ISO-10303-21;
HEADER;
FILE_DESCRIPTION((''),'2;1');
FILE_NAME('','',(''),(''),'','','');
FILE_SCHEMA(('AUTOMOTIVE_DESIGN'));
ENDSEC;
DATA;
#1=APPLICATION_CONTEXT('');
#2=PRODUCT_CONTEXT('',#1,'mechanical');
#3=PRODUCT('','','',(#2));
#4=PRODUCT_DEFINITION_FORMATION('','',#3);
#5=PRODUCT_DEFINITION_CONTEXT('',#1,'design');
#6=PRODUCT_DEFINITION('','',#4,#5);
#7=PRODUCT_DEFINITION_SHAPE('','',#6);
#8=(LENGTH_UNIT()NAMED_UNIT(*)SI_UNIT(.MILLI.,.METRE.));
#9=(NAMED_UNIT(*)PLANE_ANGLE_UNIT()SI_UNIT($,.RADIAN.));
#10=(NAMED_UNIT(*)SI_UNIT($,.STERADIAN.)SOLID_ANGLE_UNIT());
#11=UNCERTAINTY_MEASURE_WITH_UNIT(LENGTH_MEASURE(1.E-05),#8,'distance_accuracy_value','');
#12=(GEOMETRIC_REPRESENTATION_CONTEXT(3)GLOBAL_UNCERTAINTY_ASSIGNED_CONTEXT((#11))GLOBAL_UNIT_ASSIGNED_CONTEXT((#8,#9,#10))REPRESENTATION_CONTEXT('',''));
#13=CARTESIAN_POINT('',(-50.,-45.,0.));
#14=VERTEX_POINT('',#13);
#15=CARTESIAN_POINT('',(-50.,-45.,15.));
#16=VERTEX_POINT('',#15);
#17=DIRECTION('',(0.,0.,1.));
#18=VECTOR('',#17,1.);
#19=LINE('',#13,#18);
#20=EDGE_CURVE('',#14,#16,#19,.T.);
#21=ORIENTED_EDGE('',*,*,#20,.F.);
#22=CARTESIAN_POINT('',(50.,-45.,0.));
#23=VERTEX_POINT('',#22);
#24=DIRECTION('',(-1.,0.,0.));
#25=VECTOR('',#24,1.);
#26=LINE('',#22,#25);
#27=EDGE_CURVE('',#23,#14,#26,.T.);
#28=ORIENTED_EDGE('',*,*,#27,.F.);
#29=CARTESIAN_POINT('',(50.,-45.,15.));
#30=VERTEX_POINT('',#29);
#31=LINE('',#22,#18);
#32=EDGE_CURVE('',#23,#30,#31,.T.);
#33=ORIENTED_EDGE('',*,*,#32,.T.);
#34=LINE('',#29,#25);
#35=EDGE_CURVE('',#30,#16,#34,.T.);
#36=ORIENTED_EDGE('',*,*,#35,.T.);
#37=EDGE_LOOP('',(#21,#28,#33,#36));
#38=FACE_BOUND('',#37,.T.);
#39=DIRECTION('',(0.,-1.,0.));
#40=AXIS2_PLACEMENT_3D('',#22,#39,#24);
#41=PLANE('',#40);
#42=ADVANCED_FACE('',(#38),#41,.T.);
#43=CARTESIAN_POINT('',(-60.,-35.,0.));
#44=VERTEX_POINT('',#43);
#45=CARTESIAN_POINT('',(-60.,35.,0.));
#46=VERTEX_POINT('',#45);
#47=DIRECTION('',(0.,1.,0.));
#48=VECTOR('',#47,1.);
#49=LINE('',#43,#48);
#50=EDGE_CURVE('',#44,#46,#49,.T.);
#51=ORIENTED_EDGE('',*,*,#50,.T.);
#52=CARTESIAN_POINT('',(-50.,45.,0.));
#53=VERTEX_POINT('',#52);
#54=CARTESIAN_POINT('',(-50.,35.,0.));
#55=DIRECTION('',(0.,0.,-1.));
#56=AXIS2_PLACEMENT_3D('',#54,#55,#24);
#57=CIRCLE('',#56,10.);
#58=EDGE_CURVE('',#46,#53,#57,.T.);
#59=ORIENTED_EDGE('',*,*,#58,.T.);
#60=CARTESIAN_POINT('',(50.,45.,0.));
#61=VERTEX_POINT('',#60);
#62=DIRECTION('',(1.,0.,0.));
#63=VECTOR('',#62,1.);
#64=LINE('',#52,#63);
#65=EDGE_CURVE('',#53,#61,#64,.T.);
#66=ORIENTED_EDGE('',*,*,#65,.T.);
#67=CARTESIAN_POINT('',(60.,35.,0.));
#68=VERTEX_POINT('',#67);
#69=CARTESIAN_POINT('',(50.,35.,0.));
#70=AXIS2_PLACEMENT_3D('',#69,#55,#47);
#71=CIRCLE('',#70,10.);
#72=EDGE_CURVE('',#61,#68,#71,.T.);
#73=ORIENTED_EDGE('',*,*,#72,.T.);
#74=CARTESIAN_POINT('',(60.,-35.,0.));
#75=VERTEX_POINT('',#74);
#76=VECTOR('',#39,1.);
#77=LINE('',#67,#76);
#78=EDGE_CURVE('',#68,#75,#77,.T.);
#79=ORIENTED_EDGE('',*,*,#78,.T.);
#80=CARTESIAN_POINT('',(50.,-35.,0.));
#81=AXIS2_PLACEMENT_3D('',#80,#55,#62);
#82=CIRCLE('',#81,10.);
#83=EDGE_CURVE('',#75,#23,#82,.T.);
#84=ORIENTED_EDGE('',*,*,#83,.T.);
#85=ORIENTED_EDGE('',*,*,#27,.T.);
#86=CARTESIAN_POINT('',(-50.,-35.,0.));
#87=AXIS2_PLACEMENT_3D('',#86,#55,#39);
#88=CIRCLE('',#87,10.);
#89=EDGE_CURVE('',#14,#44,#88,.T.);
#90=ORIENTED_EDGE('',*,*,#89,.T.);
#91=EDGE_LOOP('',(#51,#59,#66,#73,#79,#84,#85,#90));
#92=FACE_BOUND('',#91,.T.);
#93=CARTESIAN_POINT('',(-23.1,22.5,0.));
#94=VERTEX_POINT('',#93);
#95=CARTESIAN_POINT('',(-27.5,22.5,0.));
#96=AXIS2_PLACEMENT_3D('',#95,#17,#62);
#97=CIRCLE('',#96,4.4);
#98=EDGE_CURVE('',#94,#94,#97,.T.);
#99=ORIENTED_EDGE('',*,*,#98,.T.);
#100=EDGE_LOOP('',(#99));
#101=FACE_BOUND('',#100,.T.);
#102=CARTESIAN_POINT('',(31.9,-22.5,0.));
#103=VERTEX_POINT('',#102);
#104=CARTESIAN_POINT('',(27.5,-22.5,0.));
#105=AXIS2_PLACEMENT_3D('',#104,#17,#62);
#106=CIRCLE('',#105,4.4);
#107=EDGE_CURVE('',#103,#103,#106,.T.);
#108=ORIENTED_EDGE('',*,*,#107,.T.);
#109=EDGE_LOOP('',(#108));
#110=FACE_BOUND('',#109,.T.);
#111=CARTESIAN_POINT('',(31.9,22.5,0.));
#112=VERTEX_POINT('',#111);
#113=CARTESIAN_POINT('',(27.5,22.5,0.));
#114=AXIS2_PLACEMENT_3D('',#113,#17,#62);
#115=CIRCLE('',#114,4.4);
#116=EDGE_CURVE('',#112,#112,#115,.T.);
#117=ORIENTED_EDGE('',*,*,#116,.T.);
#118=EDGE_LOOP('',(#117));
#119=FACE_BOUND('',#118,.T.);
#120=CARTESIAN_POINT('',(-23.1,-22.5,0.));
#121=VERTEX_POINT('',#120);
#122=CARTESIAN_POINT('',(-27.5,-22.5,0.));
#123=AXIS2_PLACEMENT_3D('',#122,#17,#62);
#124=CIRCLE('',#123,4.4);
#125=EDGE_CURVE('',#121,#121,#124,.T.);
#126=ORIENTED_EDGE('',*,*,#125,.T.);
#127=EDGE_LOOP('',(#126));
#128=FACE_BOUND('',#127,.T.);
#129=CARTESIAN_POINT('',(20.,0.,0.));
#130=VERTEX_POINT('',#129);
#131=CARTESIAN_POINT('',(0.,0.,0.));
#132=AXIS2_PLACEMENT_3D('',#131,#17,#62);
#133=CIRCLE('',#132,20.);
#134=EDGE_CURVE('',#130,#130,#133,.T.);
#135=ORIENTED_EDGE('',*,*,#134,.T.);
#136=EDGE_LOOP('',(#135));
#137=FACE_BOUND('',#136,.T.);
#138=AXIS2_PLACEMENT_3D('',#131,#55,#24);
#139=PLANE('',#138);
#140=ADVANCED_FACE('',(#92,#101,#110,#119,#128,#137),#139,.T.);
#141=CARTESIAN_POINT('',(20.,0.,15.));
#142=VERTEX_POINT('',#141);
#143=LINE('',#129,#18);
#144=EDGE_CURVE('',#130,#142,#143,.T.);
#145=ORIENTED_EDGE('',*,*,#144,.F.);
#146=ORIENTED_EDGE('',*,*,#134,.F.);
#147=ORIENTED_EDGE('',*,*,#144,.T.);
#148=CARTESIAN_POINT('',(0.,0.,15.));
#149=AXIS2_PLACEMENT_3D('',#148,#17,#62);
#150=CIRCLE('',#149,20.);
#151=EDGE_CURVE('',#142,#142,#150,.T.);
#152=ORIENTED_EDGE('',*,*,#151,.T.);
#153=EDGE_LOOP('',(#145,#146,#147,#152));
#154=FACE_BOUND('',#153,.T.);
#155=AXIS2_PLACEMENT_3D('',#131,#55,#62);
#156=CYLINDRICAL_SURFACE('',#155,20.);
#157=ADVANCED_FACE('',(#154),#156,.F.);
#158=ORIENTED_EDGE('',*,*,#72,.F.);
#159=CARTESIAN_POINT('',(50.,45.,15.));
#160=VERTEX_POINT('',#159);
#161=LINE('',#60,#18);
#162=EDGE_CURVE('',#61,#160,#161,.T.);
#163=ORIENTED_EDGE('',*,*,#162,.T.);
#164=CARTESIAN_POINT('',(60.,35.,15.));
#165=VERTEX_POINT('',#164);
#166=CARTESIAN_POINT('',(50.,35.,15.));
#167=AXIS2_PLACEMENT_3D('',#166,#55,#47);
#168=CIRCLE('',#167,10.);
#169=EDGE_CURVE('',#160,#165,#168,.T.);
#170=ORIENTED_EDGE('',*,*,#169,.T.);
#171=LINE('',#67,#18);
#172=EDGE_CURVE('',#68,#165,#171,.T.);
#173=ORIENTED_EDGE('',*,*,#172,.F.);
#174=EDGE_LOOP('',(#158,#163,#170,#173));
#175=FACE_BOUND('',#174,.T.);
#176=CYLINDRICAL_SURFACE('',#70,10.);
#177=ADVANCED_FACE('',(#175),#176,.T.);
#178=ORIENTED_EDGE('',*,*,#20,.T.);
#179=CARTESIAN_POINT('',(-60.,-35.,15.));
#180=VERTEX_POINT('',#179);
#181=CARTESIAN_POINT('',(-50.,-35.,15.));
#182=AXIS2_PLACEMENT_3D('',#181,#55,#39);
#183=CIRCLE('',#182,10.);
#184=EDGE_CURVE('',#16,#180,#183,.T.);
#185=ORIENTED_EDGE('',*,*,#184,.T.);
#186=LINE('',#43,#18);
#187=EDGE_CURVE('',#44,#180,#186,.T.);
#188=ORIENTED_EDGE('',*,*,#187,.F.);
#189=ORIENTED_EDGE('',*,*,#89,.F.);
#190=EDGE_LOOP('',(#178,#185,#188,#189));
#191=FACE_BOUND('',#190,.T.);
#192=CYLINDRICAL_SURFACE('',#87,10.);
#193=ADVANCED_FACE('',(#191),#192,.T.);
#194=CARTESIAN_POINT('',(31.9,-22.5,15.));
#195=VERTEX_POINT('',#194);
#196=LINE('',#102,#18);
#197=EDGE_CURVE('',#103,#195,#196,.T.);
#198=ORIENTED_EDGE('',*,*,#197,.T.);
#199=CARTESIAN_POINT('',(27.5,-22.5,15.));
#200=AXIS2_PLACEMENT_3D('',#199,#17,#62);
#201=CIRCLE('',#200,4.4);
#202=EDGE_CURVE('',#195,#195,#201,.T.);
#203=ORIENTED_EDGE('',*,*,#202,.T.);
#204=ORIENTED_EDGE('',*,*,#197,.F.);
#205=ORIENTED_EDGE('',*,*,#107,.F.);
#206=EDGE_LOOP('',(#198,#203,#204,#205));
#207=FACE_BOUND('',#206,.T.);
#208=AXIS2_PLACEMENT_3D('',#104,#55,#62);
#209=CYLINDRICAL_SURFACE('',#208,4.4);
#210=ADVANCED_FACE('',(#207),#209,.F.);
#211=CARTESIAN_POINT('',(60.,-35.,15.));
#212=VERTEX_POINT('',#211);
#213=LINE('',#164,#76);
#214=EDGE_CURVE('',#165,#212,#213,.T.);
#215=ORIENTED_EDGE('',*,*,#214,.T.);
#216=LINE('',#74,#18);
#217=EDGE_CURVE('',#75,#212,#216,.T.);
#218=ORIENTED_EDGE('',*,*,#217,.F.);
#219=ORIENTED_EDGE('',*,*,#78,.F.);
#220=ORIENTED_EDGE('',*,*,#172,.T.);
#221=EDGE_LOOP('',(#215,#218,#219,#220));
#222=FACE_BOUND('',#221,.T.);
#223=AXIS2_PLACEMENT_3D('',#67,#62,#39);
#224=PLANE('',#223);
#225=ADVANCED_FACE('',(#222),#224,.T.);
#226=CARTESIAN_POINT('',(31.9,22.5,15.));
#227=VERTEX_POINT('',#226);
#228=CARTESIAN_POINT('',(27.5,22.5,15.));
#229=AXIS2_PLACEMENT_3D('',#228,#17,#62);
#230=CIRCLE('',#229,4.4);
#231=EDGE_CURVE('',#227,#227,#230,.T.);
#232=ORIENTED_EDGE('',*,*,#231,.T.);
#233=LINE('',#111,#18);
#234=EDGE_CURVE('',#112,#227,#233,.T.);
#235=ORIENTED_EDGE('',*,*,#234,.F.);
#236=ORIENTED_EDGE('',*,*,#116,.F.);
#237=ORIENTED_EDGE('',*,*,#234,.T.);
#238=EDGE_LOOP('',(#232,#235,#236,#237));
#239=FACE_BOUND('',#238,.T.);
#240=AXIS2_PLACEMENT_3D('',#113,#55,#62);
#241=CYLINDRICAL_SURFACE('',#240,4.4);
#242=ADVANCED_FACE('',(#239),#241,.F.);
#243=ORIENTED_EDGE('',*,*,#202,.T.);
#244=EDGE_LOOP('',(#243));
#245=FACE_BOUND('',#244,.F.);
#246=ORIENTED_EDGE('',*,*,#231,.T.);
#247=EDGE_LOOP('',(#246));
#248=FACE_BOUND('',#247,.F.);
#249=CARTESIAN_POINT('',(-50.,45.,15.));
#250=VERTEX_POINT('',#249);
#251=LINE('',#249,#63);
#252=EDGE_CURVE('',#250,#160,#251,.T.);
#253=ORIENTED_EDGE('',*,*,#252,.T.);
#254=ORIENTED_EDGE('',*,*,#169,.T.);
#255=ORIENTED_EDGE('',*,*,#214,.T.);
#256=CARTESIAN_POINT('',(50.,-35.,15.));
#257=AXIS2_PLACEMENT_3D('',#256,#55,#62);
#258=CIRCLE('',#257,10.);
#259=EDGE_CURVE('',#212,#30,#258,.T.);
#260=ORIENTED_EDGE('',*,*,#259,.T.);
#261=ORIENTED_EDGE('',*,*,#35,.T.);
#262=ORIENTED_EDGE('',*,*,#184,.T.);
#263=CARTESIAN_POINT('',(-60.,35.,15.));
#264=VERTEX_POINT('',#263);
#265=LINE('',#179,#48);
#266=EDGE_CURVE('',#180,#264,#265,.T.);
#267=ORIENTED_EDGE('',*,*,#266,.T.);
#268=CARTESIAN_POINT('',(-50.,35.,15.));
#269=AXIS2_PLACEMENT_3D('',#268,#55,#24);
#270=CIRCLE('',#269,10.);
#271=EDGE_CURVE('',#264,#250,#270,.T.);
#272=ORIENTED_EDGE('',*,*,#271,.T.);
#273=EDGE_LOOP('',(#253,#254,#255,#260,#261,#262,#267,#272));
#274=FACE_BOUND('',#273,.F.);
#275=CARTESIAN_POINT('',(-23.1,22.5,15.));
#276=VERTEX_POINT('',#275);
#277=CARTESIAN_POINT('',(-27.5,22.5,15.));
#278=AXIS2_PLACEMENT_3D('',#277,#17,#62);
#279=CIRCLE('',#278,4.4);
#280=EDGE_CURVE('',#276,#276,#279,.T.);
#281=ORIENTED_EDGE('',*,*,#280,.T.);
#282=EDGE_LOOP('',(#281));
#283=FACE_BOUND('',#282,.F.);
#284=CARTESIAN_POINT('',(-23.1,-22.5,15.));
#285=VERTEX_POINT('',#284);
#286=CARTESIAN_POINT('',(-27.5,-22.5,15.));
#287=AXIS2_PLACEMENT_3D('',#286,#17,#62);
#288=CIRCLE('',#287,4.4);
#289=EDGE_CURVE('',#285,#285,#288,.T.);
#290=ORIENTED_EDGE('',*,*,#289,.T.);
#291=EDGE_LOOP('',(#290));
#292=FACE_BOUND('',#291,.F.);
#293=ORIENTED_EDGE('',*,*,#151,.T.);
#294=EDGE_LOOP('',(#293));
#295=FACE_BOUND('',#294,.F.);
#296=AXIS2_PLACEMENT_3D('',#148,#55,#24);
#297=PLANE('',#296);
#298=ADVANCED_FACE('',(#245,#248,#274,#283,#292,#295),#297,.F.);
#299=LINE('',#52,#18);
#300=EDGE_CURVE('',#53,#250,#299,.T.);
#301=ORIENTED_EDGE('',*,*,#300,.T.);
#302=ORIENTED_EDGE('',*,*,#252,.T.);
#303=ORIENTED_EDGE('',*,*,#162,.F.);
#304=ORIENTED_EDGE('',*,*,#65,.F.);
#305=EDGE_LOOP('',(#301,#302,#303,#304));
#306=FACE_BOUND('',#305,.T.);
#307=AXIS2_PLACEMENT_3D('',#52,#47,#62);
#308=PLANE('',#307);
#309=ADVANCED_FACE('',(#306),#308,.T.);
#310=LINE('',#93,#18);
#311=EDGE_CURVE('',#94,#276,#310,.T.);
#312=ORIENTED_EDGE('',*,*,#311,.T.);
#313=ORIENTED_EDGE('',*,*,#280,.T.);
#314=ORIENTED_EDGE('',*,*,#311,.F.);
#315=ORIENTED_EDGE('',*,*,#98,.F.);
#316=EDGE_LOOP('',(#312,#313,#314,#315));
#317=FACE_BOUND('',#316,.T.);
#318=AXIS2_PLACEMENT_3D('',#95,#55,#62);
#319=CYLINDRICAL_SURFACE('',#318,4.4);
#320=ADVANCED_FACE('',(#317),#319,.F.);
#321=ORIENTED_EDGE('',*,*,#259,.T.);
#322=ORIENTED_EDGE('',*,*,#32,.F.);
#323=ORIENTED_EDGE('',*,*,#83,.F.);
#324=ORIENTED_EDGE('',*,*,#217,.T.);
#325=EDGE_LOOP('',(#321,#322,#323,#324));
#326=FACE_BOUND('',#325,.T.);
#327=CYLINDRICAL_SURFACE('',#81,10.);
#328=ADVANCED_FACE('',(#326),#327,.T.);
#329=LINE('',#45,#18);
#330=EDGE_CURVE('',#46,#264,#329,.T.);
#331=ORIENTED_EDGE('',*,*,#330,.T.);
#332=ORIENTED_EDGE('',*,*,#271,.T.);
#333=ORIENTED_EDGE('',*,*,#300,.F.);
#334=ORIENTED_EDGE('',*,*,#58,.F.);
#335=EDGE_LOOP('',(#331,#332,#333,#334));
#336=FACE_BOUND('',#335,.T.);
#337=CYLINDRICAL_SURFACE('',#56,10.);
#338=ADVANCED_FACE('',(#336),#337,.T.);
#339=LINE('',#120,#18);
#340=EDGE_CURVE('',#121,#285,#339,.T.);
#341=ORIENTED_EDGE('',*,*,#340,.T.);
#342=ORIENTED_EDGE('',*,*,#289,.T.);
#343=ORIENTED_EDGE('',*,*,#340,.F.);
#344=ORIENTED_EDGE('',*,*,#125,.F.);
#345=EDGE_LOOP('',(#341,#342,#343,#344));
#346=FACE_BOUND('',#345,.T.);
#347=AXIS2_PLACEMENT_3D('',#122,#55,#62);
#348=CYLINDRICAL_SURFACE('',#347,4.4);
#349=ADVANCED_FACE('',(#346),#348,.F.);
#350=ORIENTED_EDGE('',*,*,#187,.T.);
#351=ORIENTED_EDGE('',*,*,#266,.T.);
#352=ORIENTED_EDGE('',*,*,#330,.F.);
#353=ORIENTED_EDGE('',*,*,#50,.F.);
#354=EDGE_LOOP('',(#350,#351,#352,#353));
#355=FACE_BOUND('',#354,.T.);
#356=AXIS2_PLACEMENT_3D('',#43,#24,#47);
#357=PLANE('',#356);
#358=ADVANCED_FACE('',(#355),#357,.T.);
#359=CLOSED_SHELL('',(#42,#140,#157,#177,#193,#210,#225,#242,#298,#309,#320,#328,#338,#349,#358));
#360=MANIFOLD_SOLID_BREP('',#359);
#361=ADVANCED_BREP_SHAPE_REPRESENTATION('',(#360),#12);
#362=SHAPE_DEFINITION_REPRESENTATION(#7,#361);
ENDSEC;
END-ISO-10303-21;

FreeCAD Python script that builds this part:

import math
import FreeCAD as App
import Part
import Sketcher
Q = App.Units.Quantity

doc = App.newDocument("Part")
body = doc.addObject("PartDesign::Body", "Body")

# Sketch on XY plane
sketch1 = doc.addObject("Sketcher::SketchObject", "Sketch")
body.addObject(sketch1)
sketch1.AttachmentSupport = (doc.XY_Plane, [""])
sketch1.MapMode = "FlatFace"
sketch1.addGeometry([
    Part.LineSegment(App.Vector(50, 45, 0), App.Vector(-50, 45, 0)),  # 0
    Part.ArcOfCircle(Part.Circle(App.Vector(-50, 35, 0), App.Vector(0, 0, 1), 10), math.radians(90), math.radians(180)),  # 1
    Part.LineSegment(App.Vector(-60, 35, 0), App.Vector(-60, -35, 0)),  # 2
    Part.ArcOfCircle(Part.Circle(App.Vector(-50, -35, 0), App.Vector(0, 0, 1), 10), math.radians(180), math.radians(270)),  # 3
    Part.LineSegment(App.Vector(-50, -45, 0), App.Vector(50, -45, 0)),  # 4
    Part.ArcOfCircle(Part.Circle(App.Vector(50, -35, 0), App.Vector(0, 0, 1), 10), math.radians(-90), math.radians(0)),  # 5
    Part.LineSegment(App.Vector(60, -35, 0), App.Vector(60, 35, 0)),  # 6
    Part.ArcOfCircle(Part.Circle(App.Vector(50, 35, 0), App.Vector(0, 0, 1), 10), math.radians(0), math.radians(90)),  # 7
    Part.Circle(App.Vector(27.5, -22.5, 0), App.Vector(0, 0, 1), 4.4),  # 8
    Part.Circle(App.Vector(-27.5, -22.5, 0), App.Vector(0, 0, 1), 4.4),  # 9
    Part.Circle(App.Vector(27.5, 22.5, 0), App.Vector(0, 0, 1), 4.4),  # 10
    Part.Circle(App.Vector(0, 0, 0), App.Vector(0, 0, 1), 20),  # 11
    Part.Circle(App.Vector(-27.5, 22.5, 0), App.Vector(0, 0, 1), 4.4),  # 12
], False)
sketch1.addConstraint([
    Sketcher.Constraint("Tangent", 0, 2, 1, 1),
    Sketcher.Constraint("Tangent", 1, 2, 2, 1),
    Sketcher.Constraint("Tangent", 2, 2, 3, 1),
    Sketcher.Constraint("Tangent", 3, 2, 4, 1),
    Sketcher.Constraint("Tangent", 4, 2, 5, 1),
    Sketcher.Constraint("Tangent", 5, 2, 6, 1),
    Sketcher.Constraint("Tangent", 6, 2, 7, 1),
    Sketcher.Constraint("Tangent", 7, 2, 0, 1),
    Sketcher.Constraint("Horizontal", 0),
    Sketcher.Constraint("Vertical", 2),
    Sketcher.Constraint("Horizontal", 4),
    Sketcher.Constraint("Vertical", 6),
    Sketcher.Constraint("Coincident", 11, 3, -1, 1),
    Sketcher.Constraint("Equal", 1, 3),
    Sketcher.Constraint("Equal", 3, 5),
    Sketcher.Constraint("Equal", 5, 7),
    Sketcher.Constraint("Equal", 8, 9),
    Sketcher.Constraint("Equal", 9, 10),
    Sketcher.Constraint("Equal", 10, 12),
    Sketcher.Constraint("Symmetric", 1, 3, 5, 3, -1, 1),
    Sketcher.Constraint("Symmetric", 9, 3, 10, 3, -1, 1),
    Sketcher.Constraint("Symmetric", 8, 3, 12, 3, -1, 1),
    Sketcher.Constraint("Symmetric", 8, 3, 9, 3, -2),
    Sketcher.Constraint("Diameter", 11, Q("40 mm")),
    Sketcher.Constraint("Radius", 1, Q("10 mm")),
    Sketcher.Constraint("Diameter", 8, Q("8.8 mm")),
    Sketcher.Constraint("DistanceX", 0, 2, 0, 1, Q("100 mm")),
    Sketcher.Constraint("DistanceY", 2, 2, 2, 1, Q("70 mm")),
    Sketcher.Constraint("DistanceX", 9, 3, 8, 3, Q("55 mm")),
    Sketcher.Constraint("DistanceY", 8, 3, 10, 3, Q("45 mm")),
])
pad1 = doc.addObject("PartDesign::Pad", "Pad")
body.addObject(pad1)
pad1.Profile = sketch1
pad1.Length = 15

doc.recompute()
